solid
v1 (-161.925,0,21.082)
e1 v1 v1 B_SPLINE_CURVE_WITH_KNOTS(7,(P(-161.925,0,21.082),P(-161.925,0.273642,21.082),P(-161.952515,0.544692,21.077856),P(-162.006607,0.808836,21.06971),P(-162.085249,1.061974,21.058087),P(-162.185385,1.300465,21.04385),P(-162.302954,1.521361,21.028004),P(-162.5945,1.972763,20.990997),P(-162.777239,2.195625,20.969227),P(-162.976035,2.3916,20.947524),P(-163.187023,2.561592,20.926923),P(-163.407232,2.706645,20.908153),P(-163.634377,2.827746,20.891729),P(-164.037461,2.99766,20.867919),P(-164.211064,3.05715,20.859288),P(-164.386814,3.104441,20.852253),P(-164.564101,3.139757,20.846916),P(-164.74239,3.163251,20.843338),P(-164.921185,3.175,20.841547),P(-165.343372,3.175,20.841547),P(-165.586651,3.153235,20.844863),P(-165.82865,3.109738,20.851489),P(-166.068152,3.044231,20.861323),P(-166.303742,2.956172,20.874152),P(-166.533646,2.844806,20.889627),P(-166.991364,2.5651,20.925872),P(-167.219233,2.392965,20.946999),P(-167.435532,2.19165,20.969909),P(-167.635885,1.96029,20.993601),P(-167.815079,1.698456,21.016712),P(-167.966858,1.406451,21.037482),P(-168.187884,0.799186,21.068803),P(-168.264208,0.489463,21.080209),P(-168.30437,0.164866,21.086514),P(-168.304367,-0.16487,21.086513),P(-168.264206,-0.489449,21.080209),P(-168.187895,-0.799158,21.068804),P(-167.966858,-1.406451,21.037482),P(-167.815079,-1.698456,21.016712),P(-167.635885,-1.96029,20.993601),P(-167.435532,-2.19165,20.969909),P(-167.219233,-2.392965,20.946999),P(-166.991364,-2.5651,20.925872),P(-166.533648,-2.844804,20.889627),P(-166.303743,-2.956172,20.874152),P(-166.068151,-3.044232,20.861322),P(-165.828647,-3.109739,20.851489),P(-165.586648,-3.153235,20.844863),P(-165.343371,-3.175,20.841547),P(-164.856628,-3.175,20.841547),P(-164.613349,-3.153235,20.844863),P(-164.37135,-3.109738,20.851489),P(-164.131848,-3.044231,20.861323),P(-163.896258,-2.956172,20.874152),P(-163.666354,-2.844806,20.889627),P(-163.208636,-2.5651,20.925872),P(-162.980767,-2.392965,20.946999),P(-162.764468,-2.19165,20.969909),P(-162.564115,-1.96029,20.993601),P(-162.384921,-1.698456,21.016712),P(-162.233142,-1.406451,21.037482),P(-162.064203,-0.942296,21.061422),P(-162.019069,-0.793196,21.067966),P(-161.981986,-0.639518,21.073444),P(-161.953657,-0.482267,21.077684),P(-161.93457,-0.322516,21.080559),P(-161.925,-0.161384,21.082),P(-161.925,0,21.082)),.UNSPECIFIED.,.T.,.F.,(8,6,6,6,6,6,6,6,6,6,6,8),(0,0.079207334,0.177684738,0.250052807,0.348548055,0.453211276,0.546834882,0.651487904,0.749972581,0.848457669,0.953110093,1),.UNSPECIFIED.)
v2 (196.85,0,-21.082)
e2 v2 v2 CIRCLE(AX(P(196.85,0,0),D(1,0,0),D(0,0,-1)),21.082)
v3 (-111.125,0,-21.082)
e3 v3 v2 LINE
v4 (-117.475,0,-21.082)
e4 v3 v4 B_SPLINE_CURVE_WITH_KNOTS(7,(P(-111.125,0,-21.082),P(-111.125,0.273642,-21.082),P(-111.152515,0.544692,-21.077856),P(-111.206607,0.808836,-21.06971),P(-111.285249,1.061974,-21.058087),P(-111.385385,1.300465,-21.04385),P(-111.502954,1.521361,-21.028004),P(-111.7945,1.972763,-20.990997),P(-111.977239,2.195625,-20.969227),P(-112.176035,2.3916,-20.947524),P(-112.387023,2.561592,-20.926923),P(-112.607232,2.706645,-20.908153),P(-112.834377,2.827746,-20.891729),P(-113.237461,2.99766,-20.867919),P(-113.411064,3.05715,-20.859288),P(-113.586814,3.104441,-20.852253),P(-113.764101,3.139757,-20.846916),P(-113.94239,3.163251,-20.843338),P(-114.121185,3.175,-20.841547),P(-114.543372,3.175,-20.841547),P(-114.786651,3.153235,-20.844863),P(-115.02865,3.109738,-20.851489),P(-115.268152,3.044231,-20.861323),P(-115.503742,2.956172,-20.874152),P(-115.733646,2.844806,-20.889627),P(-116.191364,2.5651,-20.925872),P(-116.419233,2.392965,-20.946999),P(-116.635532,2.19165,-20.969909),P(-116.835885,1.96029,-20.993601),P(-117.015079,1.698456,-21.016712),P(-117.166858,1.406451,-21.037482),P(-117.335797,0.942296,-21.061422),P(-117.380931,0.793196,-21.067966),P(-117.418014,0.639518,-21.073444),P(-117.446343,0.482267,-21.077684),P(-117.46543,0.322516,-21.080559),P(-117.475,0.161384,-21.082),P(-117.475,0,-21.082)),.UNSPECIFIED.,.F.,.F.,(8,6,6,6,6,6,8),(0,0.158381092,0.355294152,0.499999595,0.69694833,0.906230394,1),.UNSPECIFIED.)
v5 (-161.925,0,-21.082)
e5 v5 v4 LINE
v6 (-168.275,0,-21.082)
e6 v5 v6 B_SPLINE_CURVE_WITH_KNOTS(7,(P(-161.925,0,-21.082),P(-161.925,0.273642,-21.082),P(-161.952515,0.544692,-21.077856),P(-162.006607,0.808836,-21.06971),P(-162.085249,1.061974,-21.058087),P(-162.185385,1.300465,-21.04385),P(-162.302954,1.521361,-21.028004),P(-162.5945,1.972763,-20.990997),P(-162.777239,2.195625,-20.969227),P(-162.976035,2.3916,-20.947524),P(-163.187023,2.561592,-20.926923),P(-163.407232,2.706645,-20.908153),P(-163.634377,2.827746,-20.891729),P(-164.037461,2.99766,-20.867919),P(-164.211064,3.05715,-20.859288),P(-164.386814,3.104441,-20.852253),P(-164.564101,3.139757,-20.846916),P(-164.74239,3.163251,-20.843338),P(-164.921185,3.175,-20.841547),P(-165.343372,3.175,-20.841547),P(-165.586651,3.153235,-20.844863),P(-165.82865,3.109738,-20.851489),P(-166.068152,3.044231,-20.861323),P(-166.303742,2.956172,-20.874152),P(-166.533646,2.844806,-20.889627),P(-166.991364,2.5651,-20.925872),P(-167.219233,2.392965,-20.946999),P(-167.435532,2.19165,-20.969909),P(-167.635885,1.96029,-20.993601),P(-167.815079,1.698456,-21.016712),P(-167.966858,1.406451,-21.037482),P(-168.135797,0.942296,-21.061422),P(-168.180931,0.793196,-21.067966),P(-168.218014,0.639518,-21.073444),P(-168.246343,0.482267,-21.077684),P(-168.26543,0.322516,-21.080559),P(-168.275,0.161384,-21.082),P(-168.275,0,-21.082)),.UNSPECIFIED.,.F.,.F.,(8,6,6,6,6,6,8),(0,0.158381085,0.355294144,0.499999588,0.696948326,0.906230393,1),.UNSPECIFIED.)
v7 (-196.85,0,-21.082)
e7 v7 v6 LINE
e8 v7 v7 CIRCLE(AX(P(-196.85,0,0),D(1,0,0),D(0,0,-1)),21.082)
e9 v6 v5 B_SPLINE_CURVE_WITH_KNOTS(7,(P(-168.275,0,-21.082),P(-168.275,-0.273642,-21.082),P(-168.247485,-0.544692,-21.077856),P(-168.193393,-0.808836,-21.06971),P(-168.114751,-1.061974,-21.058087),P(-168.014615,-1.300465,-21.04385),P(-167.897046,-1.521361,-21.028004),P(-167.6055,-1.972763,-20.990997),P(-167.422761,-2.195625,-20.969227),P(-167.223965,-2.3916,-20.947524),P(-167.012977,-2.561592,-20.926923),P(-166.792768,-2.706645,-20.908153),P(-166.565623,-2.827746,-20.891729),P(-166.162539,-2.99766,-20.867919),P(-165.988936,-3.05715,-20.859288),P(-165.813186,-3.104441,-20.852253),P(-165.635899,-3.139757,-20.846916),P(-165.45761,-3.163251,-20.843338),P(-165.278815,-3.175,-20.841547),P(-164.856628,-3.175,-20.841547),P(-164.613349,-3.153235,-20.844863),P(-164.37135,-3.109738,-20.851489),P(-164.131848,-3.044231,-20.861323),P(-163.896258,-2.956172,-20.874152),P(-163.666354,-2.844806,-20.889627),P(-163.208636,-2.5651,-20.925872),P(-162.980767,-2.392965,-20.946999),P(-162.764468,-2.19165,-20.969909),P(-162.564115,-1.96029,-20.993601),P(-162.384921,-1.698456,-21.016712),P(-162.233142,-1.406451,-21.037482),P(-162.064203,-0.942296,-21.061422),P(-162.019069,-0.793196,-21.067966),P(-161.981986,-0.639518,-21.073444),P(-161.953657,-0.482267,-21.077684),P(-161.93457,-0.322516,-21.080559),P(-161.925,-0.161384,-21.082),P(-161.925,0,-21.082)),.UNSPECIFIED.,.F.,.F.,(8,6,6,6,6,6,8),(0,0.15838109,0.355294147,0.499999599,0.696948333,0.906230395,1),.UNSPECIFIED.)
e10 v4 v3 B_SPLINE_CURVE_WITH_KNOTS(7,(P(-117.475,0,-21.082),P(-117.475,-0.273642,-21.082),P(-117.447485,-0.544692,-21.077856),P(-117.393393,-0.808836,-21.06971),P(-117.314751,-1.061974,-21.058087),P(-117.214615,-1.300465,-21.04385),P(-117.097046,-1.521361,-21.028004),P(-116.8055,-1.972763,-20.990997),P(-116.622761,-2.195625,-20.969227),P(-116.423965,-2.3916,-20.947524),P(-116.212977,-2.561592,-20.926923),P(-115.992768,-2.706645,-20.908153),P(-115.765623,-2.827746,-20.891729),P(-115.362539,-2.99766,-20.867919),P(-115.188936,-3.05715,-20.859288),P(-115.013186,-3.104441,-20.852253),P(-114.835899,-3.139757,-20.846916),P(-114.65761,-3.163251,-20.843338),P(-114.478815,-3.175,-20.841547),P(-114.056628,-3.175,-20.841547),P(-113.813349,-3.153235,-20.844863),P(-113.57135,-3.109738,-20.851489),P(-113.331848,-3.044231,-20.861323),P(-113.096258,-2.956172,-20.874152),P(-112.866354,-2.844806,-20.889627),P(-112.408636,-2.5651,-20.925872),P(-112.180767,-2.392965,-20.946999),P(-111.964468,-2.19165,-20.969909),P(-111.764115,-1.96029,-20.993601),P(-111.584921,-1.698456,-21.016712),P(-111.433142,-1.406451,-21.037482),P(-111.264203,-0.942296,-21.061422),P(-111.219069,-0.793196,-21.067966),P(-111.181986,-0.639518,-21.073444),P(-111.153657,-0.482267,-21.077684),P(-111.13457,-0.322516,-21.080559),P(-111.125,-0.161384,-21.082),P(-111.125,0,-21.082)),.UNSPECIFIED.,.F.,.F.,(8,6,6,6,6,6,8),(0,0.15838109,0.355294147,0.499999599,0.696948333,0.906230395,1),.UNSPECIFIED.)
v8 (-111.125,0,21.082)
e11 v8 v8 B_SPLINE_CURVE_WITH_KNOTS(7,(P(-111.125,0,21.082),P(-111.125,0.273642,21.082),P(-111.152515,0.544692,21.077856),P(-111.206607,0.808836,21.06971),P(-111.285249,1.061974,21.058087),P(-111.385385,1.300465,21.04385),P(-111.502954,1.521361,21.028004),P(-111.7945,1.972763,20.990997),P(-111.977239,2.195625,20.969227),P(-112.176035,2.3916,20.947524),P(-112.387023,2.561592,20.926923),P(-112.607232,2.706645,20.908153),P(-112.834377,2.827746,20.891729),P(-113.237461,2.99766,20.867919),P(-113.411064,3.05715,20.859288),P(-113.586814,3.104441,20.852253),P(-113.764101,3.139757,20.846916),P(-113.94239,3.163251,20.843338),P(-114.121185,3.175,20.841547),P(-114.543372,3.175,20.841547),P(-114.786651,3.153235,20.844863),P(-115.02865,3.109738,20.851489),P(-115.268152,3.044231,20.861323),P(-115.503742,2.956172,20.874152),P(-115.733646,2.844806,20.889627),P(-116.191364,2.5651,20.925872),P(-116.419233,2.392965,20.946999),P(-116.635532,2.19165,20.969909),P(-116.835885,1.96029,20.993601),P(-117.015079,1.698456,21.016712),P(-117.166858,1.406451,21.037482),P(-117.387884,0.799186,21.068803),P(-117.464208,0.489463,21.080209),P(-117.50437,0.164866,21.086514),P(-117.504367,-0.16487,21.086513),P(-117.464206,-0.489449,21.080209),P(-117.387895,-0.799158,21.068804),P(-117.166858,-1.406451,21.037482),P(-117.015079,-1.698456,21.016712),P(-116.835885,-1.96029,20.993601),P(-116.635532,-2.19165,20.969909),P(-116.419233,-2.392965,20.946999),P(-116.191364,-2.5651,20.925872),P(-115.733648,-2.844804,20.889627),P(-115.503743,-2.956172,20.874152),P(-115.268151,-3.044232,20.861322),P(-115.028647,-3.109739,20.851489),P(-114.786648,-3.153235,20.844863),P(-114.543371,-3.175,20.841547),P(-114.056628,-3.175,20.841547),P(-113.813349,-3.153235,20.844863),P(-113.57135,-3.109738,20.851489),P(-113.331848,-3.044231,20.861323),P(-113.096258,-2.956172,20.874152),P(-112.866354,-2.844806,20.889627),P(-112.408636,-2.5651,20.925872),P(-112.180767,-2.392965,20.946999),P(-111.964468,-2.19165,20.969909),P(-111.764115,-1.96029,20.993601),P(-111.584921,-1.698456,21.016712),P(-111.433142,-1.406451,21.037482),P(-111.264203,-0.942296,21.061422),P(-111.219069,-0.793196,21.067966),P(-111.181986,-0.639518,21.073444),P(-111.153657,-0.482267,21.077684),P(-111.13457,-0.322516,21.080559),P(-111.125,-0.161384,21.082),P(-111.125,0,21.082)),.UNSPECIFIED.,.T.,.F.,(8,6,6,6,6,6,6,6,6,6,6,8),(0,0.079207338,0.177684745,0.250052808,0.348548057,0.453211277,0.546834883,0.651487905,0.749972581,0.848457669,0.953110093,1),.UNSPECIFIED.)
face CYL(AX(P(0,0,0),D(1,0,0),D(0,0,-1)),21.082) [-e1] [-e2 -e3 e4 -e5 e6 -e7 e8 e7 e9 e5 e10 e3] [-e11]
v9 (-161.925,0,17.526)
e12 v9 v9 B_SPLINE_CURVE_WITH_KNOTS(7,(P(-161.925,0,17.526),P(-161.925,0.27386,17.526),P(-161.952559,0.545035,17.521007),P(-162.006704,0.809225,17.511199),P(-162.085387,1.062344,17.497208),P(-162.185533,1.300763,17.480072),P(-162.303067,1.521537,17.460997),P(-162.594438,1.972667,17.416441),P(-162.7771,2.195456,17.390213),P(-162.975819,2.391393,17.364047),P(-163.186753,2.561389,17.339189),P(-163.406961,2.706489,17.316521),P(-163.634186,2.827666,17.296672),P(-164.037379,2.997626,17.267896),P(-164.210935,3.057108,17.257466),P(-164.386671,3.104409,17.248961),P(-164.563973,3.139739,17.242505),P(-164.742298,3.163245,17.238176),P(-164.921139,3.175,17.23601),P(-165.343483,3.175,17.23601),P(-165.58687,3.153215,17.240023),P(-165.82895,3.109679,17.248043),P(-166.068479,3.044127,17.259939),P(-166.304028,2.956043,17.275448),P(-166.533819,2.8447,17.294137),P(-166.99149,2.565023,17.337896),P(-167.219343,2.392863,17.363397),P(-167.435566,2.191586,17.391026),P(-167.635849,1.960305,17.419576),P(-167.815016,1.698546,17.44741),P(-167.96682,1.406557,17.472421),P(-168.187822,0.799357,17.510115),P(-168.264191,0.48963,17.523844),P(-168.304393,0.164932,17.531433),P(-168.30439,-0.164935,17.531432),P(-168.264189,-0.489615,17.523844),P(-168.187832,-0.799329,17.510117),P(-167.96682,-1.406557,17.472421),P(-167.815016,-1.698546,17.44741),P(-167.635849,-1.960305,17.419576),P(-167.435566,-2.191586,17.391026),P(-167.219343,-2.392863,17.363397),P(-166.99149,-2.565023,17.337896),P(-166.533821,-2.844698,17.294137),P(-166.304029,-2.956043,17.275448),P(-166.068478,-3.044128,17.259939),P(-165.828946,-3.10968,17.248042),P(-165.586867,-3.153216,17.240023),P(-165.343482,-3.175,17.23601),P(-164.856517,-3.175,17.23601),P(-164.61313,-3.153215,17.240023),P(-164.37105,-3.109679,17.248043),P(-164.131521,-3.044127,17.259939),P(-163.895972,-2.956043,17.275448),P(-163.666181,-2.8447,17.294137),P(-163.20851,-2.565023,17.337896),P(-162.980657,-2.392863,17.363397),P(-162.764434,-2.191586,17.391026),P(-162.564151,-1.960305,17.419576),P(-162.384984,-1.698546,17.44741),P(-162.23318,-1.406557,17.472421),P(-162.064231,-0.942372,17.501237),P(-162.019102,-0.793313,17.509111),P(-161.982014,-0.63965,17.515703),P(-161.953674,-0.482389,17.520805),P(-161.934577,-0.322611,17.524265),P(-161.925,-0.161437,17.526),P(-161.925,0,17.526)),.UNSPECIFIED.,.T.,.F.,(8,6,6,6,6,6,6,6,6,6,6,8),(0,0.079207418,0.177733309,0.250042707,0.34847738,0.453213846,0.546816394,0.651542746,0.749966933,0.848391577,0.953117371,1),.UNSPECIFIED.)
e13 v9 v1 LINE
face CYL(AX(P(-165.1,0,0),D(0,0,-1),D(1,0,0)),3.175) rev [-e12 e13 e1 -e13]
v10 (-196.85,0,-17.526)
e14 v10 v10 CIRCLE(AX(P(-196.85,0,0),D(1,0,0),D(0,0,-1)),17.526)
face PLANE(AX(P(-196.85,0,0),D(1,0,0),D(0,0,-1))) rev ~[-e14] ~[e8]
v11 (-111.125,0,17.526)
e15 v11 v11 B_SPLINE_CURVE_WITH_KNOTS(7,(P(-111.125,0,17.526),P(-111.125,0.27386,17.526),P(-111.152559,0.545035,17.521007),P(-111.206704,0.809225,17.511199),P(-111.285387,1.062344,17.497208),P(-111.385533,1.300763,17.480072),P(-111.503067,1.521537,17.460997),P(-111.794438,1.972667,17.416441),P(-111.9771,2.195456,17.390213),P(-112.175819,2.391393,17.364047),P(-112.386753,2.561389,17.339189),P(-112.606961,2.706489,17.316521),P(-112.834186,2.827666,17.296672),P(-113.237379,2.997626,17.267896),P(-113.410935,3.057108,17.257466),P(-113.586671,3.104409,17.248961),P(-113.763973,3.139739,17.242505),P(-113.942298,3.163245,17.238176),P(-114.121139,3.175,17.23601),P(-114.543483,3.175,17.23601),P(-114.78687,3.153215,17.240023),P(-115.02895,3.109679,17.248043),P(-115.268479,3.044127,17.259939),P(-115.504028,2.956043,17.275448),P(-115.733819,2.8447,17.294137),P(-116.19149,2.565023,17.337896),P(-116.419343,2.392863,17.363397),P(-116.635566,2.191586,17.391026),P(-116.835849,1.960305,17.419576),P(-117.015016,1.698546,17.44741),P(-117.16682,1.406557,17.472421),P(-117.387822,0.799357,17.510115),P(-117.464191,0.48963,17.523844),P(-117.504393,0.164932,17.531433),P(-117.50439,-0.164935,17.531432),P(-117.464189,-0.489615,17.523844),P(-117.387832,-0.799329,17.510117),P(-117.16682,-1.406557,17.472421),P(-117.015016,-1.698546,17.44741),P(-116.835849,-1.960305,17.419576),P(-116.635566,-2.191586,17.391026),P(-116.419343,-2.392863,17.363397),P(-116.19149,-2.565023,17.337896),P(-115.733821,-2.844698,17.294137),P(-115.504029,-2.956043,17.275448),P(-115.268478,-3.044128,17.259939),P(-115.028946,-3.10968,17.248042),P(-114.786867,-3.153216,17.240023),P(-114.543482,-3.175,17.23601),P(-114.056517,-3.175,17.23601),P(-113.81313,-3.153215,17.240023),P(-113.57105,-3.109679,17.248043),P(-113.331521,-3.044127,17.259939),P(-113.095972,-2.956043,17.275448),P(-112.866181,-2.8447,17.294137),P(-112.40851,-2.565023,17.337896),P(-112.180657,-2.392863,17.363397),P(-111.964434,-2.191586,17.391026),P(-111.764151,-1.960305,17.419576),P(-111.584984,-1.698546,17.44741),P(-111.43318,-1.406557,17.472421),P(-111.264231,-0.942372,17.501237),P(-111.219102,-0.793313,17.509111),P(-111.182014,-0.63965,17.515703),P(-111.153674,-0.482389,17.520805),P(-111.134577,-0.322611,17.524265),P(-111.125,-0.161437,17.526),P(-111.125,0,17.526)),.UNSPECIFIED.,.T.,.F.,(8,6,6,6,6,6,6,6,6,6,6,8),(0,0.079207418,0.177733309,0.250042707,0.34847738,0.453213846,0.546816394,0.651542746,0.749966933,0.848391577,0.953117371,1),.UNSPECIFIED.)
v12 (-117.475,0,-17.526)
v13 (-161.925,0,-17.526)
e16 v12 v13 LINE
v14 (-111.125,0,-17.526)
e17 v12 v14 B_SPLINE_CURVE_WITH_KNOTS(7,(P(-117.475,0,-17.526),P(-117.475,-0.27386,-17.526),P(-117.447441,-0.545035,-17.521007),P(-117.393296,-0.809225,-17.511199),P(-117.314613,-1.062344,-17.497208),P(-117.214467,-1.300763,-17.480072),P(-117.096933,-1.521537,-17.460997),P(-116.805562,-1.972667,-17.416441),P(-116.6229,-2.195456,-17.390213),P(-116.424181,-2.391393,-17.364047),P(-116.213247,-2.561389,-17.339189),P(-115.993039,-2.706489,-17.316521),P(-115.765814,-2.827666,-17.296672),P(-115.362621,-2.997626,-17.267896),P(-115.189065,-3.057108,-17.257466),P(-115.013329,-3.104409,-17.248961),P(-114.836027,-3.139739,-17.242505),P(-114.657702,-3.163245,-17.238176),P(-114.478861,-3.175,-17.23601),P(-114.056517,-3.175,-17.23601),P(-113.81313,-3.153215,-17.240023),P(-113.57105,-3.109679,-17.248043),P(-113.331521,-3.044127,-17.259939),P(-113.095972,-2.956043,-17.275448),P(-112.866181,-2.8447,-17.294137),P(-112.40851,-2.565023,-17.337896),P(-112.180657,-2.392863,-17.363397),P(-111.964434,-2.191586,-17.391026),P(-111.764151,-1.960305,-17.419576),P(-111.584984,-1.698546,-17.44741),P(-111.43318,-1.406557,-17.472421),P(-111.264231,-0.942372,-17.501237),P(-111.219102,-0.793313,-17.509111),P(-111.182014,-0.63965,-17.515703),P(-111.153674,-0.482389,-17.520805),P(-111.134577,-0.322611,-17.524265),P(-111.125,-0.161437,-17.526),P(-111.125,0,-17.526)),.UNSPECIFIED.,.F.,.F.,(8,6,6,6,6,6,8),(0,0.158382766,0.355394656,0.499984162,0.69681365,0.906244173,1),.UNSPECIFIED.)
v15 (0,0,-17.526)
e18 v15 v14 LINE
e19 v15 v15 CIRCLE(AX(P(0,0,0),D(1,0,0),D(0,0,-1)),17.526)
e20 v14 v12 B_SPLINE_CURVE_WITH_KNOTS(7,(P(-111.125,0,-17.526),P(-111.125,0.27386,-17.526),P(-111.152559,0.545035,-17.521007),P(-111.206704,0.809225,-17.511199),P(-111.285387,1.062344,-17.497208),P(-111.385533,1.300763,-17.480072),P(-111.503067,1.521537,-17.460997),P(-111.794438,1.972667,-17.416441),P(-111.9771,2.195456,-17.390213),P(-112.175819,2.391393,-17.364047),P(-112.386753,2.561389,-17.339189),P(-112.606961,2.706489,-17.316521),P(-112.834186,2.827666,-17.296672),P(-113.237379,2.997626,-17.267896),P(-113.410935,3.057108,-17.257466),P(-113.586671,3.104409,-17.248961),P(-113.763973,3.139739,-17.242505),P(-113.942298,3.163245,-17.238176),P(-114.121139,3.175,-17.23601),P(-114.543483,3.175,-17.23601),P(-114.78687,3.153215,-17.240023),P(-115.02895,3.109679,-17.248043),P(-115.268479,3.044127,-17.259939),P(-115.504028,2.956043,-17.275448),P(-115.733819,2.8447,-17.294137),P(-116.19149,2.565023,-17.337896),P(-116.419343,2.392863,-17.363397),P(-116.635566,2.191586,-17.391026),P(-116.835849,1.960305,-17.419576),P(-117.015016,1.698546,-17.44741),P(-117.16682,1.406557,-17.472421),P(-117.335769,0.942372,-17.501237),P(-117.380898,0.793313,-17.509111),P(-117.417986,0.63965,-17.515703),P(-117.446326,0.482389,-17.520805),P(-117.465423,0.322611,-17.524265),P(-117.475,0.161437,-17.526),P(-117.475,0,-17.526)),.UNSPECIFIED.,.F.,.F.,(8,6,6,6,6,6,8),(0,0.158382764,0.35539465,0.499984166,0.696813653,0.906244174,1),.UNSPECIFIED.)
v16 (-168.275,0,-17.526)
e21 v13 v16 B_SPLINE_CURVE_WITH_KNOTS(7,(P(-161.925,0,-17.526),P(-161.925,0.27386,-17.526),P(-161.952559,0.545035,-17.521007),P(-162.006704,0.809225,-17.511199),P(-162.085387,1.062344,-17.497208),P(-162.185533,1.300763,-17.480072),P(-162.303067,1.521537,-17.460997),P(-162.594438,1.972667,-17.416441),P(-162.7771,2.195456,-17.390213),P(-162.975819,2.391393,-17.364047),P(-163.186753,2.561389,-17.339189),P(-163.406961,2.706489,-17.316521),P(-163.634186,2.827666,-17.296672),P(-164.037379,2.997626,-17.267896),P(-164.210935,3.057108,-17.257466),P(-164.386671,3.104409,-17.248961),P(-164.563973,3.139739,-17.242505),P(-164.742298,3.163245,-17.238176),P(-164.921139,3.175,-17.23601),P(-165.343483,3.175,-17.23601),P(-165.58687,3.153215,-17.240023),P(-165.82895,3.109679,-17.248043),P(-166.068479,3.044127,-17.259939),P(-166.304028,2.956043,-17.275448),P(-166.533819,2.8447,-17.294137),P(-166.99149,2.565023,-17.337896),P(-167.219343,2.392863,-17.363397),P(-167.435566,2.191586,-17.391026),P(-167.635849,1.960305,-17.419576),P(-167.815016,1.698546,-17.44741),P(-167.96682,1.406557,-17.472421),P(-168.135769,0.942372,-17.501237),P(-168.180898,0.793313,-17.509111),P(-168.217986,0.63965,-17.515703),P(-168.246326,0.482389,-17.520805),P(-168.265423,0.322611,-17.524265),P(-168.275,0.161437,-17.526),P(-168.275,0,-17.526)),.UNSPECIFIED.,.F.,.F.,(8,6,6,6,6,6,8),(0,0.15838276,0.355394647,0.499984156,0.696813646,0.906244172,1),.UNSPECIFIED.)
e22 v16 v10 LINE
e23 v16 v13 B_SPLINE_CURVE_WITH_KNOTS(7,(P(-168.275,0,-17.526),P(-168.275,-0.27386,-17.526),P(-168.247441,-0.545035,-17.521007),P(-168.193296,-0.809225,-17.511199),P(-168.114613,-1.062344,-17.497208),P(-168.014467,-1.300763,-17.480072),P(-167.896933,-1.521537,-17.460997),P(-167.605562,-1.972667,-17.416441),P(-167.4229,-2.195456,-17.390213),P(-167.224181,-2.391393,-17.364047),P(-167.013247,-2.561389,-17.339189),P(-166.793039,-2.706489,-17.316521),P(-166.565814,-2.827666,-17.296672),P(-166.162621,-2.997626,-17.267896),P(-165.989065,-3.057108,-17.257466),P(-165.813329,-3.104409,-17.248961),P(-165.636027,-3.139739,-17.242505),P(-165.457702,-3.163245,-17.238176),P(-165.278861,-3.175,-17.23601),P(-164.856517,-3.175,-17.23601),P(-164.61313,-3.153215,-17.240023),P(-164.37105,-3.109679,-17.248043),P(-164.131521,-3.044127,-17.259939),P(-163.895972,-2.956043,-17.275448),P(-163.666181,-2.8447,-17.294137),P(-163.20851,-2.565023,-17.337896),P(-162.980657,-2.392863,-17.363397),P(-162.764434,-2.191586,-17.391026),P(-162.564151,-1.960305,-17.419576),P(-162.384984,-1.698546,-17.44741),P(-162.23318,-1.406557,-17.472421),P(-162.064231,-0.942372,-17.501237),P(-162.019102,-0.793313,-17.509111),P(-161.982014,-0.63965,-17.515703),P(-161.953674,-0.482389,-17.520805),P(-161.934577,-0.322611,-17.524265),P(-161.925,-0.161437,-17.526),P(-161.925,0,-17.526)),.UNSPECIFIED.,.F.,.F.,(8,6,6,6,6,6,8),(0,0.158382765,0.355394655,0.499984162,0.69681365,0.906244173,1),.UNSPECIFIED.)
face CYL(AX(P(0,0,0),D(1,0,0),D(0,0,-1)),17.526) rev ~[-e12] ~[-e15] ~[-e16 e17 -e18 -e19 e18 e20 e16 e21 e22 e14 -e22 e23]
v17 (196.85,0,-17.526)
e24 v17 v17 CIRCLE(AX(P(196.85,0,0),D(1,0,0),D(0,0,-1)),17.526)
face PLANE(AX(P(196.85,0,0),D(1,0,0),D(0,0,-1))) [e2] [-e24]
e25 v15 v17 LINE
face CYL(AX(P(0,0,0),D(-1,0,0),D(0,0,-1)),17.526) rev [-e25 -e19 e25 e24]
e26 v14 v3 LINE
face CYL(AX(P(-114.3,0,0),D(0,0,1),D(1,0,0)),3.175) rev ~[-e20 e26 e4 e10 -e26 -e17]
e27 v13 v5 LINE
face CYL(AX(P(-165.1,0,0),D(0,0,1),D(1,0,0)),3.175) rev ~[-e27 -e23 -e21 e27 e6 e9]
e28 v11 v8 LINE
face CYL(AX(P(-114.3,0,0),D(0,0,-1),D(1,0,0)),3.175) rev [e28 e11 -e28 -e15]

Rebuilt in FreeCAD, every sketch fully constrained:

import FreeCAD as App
import Part
import Sketcher

V = App.Vector
Q = App.Units.Quantity

doc = App.newDocument("Part")
params = doc.addObject("Spreadsheet::Sheet", "Params")
for row, (alias, value) in enumerate([
    ("sketch1_diameter", "1.66 in"),
    ("sketch1_diameter2", "1.38 in"),
    ("pad1_length", "7.75 in"),
    ("pad1_length2", "7.75 in"),
    ("sketch2_diameter", "0.25 in"),
], start=1):
    params.set(f"A{row}", alias)
    params.set(f"B{row}", "=" + value)
    params.setAlias(f"B{row}", alias)

body = doc.addObject("PartDesign::Body", "Body")

sketch1 = doc.addObject("Sketcher::SketchObject", "Sketch")
body.addObject(sketch1)
sketch1.AttachmentSupport = (doc.YZ_Plane, [""])
sketch1.MapMode = "FlatFace"
sketch1.addGeometry([
    Part.Circle(V(0, 0, 0), V(0, 0, 1), 21.082),
    Part.Circle(V(0, 0, 0), V(0, 0, 1), 17.526),
], False)
sketch1.addConstraint([
    Sketcher.Constraint("Coincident", 0, 3, -1, 1),
    Sketcher.Constraint("Coincident", 1, 3, -1, 1),
    Sketcher.Constraint("Diameter", 0, Q("1.66 in")),
    Sketcher.Constraint("Diameter", 1, Q("1.38 in")),
])
sketch1.setExpression("Constraints[2]", "Params.sketch1_diameter")
sketch1.setExpression("Constraints[3]", "Params.sketch1_diameter2")
pad1 = doc.addObject("PartDesign::Pad", "Pad")
body.addObject(pad1)
pad1.Profile = sketch1
pad1.Type = "TwoLengths"
pad1.setExpression("Length", "Params.pad1_length")
pad1.setExpression("Length2", "Params.pad1_length2")

sketch2 = doc.addObject("Sketcher::SketchObject", "Sketch001")
body.addObject(sketch2)
sketch2.AttachmentSupport = (doc.XY_Plane, [""])
sketch2.MapMode = "FlatFace"
sketch2.addGeometry([
    Part.Circle(V(-114.3, 0, 0), V(0, 0, 1), 3.175),
    Part.Circle(V(-165.1, 0, 0), V(0, 0, 1), 3.175),
], False)
sketch2.addConstraint([
    Sketcher.Constraint("Equal", 0, 1),
    Sketcher.Constraint("PointOnObject", 0, 3, -1),
    Sketcher.Constraint("PointOnObject", 1, 3, -1),
    Sketcher.Constraint("Diameter", 0, Q("0.25 in")),
    Sketcher.Constraint("DistanceX", 1, 3, 0, 3, Q("2 in")),
    Sketcher.Constraint("DistanceX", 0, 3, -1, 1, Q("4.5 in")),
])
sketch2.setExpression("Constraints[3]", "Params.sketch2_diameter")
pocket1 = doc.addObject("PartDesign::Pocket", "Pocket")
body.addObject(pocket1)
pocket1.Profile = sketch2
pocket1.Type = "ThroughAll"
pocket1.Midplane = True

doc.recompute()
